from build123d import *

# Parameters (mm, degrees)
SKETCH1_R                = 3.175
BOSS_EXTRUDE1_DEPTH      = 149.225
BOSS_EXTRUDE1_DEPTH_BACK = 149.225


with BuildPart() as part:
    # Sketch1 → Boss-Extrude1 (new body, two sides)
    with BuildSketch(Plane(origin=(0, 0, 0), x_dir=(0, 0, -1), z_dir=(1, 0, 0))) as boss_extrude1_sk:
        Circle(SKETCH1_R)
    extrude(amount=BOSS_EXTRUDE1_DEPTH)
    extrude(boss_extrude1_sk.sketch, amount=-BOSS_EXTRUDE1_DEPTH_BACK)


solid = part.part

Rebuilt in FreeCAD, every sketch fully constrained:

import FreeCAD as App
import Part
import Sketcher
from FreeCAD import Vector
Q = App.Units.Quantity

doc = App.newDocument("Part")
params = doc.addObject("Spreadsheet::Sheet", "Params")
for row, (alias, value) in enumerate([
    ("sketch1_diameter", "0.25 in"),
    ("pad1_length", "5.875 in"),
    ("pad1_length2", "5.875 in"),
], start=1):
    params.set(f"A{row}", alias)
    params.set(f"B{row}", "=" + value)
    params.setAlias(f"B{row}", alias)

body = doc.addObject("PartDesign::Body", "Body")

# Sketch on YZ plane
sketch1 = doc.addObject("Sketcher::SketchObject", "Sketch")
body.addObject(sketch1)
sketch1.AttachmentSupport = (doc.YZ_Plane, [""])
sketch1.MapMode = "FlatFace"
sketch1.addGeometry(Part.Circle(Vector(0, 0, 0), Vector(0, 0, 1), 3.2), False)
sketch1.addConstraint(Sketcher.Constraint("Coincident", 0, 3, -1, 1))
sketch1.addConstraint(Sketcher.Constraint("Diameter", 0, Q("0.25 in")))
sketch1.setExpression("Constraints[1]", "Params.sketch1_diameter")
pad1 = doc.addObject("PartDesign::Pad", "Pad")
body.addObject(pad1)
pad1.Profile = sketch1
pad1.Type = "TwoLengths"
pad1.setExpression("Length", "Params.pad1_length")
pad1.setExpression("Length2", "Params.pad1_length2")

doc.recompute()
